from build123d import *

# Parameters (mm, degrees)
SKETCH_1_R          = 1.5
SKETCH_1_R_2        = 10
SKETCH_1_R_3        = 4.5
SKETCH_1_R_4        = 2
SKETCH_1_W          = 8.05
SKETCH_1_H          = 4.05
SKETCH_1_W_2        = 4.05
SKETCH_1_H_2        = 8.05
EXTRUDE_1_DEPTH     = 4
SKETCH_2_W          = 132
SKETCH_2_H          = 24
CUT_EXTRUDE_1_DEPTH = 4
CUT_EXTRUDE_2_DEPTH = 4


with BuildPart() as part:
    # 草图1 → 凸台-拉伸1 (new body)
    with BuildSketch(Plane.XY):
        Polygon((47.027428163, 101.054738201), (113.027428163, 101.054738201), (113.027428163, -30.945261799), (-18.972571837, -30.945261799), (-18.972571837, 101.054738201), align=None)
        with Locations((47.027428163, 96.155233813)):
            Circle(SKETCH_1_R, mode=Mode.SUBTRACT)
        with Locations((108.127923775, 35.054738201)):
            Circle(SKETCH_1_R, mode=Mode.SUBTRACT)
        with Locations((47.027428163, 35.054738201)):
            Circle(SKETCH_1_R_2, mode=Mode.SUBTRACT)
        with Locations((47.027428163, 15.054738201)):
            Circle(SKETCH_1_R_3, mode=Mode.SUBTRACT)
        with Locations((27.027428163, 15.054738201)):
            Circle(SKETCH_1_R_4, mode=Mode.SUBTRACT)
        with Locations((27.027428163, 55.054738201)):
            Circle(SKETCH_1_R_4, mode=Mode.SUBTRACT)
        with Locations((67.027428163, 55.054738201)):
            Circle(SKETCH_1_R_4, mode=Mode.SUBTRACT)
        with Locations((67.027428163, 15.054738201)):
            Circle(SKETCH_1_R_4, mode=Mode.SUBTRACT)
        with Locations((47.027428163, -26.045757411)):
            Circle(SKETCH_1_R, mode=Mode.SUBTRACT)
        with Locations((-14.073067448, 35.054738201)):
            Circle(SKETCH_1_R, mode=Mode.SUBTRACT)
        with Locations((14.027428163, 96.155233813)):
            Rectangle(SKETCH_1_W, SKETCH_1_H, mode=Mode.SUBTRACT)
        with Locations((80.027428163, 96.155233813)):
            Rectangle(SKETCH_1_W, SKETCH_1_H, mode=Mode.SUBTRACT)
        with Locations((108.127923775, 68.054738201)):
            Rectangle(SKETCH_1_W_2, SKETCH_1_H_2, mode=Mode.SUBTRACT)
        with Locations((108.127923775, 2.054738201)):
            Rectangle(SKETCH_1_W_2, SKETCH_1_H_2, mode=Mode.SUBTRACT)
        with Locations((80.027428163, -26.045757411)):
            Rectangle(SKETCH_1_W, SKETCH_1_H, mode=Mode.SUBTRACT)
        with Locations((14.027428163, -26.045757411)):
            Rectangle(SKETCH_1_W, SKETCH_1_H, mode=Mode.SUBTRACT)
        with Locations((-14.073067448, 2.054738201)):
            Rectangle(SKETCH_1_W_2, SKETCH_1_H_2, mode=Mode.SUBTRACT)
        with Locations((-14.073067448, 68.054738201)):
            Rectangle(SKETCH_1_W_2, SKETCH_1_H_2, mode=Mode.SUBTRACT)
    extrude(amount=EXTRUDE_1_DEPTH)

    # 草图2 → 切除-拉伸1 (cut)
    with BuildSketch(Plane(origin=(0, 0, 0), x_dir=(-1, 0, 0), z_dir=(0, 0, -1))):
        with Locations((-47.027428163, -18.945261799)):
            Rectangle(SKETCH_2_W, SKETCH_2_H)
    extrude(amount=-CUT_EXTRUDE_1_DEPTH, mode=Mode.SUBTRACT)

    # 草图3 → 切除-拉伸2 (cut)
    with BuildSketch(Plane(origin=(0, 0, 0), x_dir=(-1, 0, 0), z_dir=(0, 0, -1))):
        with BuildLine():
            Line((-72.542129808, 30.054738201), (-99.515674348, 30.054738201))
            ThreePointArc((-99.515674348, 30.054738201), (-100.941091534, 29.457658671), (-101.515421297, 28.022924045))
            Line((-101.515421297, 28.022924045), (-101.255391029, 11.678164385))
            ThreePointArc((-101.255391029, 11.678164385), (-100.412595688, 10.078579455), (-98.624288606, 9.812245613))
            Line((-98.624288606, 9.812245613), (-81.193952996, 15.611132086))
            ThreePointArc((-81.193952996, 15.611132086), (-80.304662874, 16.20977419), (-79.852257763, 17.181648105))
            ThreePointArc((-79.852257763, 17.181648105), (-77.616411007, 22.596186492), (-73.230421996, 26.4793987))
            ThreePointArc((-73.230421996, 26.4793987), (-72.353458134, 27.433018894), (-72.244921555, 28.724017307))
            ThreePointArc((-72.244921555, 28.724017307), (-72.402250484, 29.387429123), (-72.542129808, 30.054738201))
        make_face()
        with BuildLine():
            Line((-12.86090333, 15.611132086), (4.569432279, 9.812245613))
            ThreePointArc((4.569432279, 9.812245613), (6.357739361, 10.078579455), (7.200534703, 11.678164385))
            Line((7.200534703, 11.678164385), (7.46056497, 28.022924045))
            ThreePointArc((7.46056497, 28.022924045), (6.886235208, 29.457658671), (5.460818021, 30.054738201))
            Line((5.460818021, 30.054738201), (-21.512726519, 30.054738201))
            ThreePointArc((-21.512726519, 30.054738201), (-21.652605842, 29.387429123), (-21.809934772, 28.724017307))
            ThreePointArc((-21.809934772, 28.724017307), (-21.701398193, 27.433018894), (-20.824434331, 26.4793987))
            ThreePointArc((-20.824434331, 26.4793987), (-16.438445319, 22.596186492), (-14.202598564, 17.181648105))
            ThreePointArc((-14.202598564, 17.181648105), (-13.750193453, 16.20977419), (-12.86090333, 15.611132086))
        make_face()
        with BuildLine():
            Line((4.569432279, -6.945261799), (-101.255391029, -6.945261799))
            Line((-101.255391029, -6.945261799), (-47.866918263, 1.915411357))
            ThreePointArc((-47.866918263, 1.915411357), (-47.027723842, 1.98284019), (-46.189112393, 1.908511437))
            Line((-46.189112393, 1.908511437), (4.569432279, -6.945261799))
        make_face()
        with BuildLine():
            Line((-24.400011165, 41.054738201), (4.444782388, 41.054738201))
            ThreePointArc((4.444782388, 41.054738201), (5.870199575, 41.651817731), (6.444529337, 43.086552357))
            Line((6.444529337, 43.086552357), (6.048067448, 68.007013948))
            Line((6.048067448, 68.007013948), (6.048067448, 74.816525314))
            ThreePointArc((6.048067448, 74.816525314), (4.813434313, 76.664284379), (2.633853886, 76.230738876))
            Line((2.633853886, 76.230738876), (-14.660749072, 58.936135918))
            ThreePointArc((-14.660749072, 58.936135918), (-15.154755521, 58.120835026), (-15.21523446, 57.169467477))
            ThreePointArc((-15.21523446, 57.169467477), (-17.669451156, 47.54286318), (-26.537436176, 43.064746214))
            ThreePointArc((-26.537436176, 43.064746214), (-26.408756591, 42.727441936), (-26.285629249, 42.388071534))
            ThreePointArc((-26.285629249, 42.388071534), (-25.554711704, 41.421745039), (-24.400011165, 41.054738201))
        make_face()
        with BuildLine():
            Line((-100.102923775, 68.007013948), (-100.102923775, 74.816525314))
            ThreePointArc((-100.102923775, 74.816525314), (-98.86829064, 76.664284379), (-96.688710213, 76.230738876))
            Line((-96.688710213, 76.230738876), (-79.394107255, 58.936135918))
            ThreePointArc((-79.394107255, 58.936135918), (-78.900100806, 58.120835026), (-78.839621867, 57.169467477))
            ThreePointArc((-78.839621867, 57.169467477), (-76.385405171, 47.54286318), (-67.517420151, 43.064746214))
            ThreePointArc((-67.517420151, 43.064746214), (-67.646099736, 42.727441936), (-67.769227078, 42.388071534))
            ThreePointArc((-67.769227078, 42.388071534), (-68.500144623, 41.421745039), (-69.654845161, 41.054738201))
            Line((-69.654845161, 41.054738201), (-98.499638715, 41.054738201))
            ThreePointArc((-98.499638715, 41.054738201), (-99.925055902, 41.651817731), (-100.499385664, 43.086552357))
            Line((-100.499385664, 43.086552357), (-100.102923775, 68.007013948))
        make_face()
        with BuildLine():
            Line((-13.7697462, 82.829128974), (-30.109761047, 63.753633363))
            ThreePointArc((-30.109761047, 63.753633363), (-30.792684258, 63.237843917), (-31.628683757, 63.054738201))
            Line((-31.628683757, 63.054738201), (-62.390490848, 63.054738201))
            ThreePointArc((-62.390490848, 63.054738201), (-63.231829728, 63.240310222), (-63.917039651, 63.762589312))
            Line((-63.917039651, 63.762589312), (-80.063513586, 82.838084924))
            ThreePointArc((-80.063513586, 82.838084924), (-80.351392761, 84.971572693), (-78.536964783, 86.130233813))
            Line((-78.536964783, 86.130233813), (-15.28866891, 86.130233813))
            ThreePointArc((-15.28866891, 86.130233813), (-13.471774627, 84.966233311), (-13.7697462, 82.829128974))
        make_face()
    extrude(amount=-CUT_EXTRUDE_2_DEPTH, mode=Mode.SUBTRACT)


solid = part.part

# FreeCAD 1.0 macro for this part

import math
import FreeCAD as App
import Part
import Sketcher

V = App.Vector
Q = App.Units.Quantity

doc = App.newDocument("Part")
params = doc.addObject("Spreadsheet::Sheet", "Params")
for row, (alias, value) in enumerate([
    ("sketch1_diameter", "3 mm"),
    ("sketch1_diameter2", "4 mm"),
    ("sketch1_diameter3", "9 mm"),
    ("sketch1_diameter4", "20 mm"),
    ("sketch1_width", "132 mm"),
    ("pad1_length", "4 mm"),
    ("sketch2_width", "132 mm"),
    ("sketch2_height", "24 mm"),
    ("pocket1_length", "4 mm"),
    ("sketch3_radius", "2 mm"),
    ("sketch3_radius2", "2 mm"),
    ("sketch3_radius3", "2 mm"),
    ("sketch3_radius4", "13 mm"),
    ("sketch3_radius5", "2 mm"),
    ("pocket2_length", "4 mm"),
], start=1):
    params.set(f"A{row}", alias)
    params.set(f"B{row}", "=" + value)
    params.setAlias(f"B{row}", alias)

body = doc.addObject("PartDesign::Body", "Body")

# Sketch on XY plane
sketch1 = body.newObject("Sketcher::SketchObject", "Sketch")
sketch1.AttachmentSupport = (doc.getObject("XY_Plane"), [""])
sketch1.MapMode = "FlatFace"
sketch1.addGeometry(Part.LineSegment(V(113, 101.1, 0), V(-19, 101.1, 0)), False)
sketch1.addGeometry(Part.LineSegment(V(-19, 101.1, 0), V(-19, -30.9, 0)), False)
sketch1.addGeometry(Part.LineSegment(V(-19, -30.9, 0), V(113, -30.9, 0)), False)
sketch1.addGeometry(Part.LineSegment(V(113, -30.9, 0), V(113, 101.1, 0)), False)
sketch1.addGeometry(Part.LineSegment(V(76, -28.1, 0), V(76, -24, 0)), False)
sketch1.addGeometry(Part.LineSegment(V(76, -24, 0), V(84.1, -24, 0)), False)
sketch1.addGeometry(Part.LineSegment(V(84.1, -24, 0), V(84.1, -28.1, 0)), False)
sketch1.addGeometry(Part.LineSegment(V(84.1, -28.1, 0), V(76, -28.1, 0)), False)
sketch1.addGeometry(Part.LineSegment(V(106.1, -2, 0), V(106.1, 6.1, 0)), False)
sketch1.addGeometry(Part.LineSegment(V(106.1, 6.1, 0), V(110.2, 6.1, 0)), False)
sketch1.addGeometry(Part.LineSegment(V(110.2, 6.1, 0), V(110.2, -2, 0)), False)
sketch1.addGeometry(Part.LineSegment(V(110.2, -2, 0), V(106.1, -2, 0)), False)
sketch1.addGeometry(Part.Circle(V(108.1, 35.1, 0), V(0, 0, 1), 1.5), False)
sketch1.addGeometry(Part.Circle(V(67, 15.1, 0), V(0, 0, 1), 2), False)
sketch1.addGeometry(Part.Circle(V(47, -26, 0), V(0, 0, 1), 1.5), False)
sketch1.addGeometry(Part.LineSegment(V(10, -28.1, 0), V(10, -24, 0)), False)
sketch1.addGeometry(Part.LineSegment(V(10, -24, 0), V(18.1, -24, 0)), False)
sketch1.addGeometry(Part.LineSegment(V(18.1, -24, 0), V(18.1, -28.1, 0)), False)
sketch1.addGeometry(Part.LineSegment(V(18.1, -28.1, 0), V(10, -28.1, 0)), False)
sketch1.addGeometry(Part.LineSegment(V(-16.1, -2, 0), V(-16.1, 6.1, 0)), False)
sketch1.addGeometry(Part.LineSegment(V(-16.1, 6.1, 0), V(-12, 6.1, 0)), False)
sketch1.addGeometry(Part.LineSegment(V(-12, 6.1, 0), V(-12, -2, 0)), False)
sketch1.addGeometry(Part.LineSegment(V(-12, -2, 0), V(-16.1, -2, 0)), False)
sketch1.addGeometry(Part.Circle(V(47, 15.1, 0), V(0, 0, 1), 4.5), False)
sketch1.addGeometry(Part.Circle(V(27, 15.1, 0), V(0, 0, 1), 2), False)
sketch1.addGeometry(Part.Circle(V(47, 35.1, 0), V(0, 0, 1), 10), False)
sketch1.addGeometry(Part.Circle(V(-14.1, 35.1, 0), V(0, 0, 1), 1.5), False)
sketch1.addGeometry(Part.Circle(V(67, 55.1, 0), V(0, 0, 1), 2), False)
sketch1.addGeometry(Part.LineSegment(V(106.1, 64, 0), V(106.1, 72.1, 0)), False)
sketch1.addGeometry(Part.LineSegment(V(106.1, 72.1, 0), V(110.2, 72.1, 0)), False)
sketch1.addGeometry(Part.LineSegment(V(110.2, 72.1, 0), V(110.2, 64, 0)), False)
sketch1.addGeometry(Part.LineSegment(V(110.2, 64, 0), V(106.1, 64, 0)), False)
sketch1.addGeometry(Part.LineSegment(V(76, 94.1, 0), V(76, 98.2, 0)), False)
sketch1.addGeometry(Part.LineSegment(V(76, 98.2, 0), V(84.1, 98.2, 0)), False)
sketch1.addGeometry(Part.LineSegment(V(84.1, 98.2, 0), V(84.1, 94.1, 0)), False)
sketch1.addGeometry(Part.LineSegment(V(84.1, 94.1, 0), V(76, 94.1, 0)), False)
sketch1.addGeometry(Part.Circle(V(27, 55.1, 0), V(0, 0, 1), 2), False)
sketch1.addGeometry(Part.Circle(V(47, 96.2, 0), V(0, 0, 1), 1.5), False)
sketch1.addGeometry(Part.LineSegment(V(-16.1, 64, 0), V(-16.1, 72.1, 0)), False)
sketch1.addGeometry(Part.LineSegment(V(-16.1, 72.1, 0), V(-12, 72.1, 0)), False)
sketch1.addGeometry(Part.LineSegment(V(-12, 72.1, 0), V(-12, 64, 0)), False)
sketch1.addGeometry(Part.LineSegment(V(-12, 64, 0), V(-16.1, 64, 0)), False)
sketch1.addGeometry(Part.LineSegment(V(10, 94.1, 0), V(10, 98.2, 0)), False)
sketch1.addGeometry(Part.LineSegment(V(10, 98.2, 0), V(18.1, 98.2, 0)), False)
sketch1.addGeometry(Part.LineSegment(V(18.1, 98.2, 0), V(18.1, 94.1, 0)), False)
sketch1.addGeometry(Part.LineSegment(V(18.1, 94.1, 0), V(10, 94.1, 0)), False)
sketch1.addConstraint(Sketcher.Constraint("Coincident", 0, 2, 1, 1))
sketch1.addConstraint(Sketcher.Constraint("Coincident", 1, 2, 2, 1))
sketch1.addConstraint(Sketcher.Constraint("Coincident", 2, 2, 3, 1))
sketch1.addConstraint(Sketcher.Constraint("Coincident", 3, 2, 0, 1))
sketch1.addConstraint(Sketcher.Constraint("Coincident", 4, 2, 5, 1))
sketch1.addConstraint(Sketcher.Constraint("Coincident", 5, 2, 6, 1))
sketch1.addConstraint(Sketcher.Constraint("Coincident", 6, 2, 7, 1))
sketch1.addConstraint(Sketcher.Constraint("Coincident", 7, 2, 4, 1))
sketch1.addConstraint(Sketcher.Constraint("Coincident", 8, 2, 9, 1))
sketch1.addConstraint(Sketcher.Constraint("Coincident", 9, 2, 10, 1))
sketch1.addConstraint(Sketcher.Constraint("Coincident", 10, 2, 11, 1))
sketch1.addConstraint(Sketcher.Constraint("Coincident", 11, 2, 8, 1))
sketch1.addConstraint(Sketcher.Constraint("Coincident", 15, 2, 16, 1))
sketch1.addConstraint(Sketcher.Constraint("Coincident", 16, 2, 17, 1))
sketch1.addConstraint(Sketcher.Constraint("Coincident", 17, 2, 18, 1))
sketch1.addConstraint(Sketcher.Constraint("Coincident", 18, 2, 15, 1))
sketch1.addConstraint(Sketcher.Constraint("Coincident", 19, 2, 20, 1))
sketch1.addConstraint(Sketcher.Constraint("Coincident", 20, 2, 21, 1))
sketch1.addConstraint(Sketcher.Constraint("Coincident", 21, 2, 22, 1))
sketch1.addConstraint(Sketcher.Constraint("Coincident", 22, 2, 19, 1))
sketch1.addConstraint(Sketcher.Constraint("Coincident", 28, 2, 29, 1))
sketch1.addConstraint(Sketcher.Constraint("Coincident", 29, 2, 30, 1))
sketch1.addConstraint(Sketcher.Constraint("Coincident", 30, 2, 31, 1))
sketch1.addConstraint(Sketcher.Constraint("Coincident", 31, 2, 28, 1))
sketch1.addConstraint(Sketcher.Constraint("Coincident", 32, 2, 33, 1))
sketch1.addConstraint(Sketcher.Constraint("Coincident", 33, 2, 34, 1))
sketch1.addConstraint(Sketcher.Constraint("Coincident", 34, 2, 35, 1))
sketch1.addConstraint(Sketcher.Constraint("Coincident", 35, 2, 32, 1))
sketch1.addConstraint(Sketcher.Constraint("Coincident", 38, 2, 39, 1))
sketch1.addConstraint(Sketcher.Constraint("Coincident", 39, 2, 40, 1))
sketch1.addConstraint(Sketcher.Constraint("Coincident", 40, 2, 41, 1))
sketch1.addConstraint(Sketcher.Constraint("Coincident", 41, 2, 38, 1))
sketch1.addConstraint(Sketcher.Constraint("Coincident", 42, 2, 43, 1))
sketch1.addConstraint(Sketcher.Constraint("Coincident", 43, 2, 44, 1))
sketch1.addConstraint(Sketcher.Constraint("Coincident", 44, 2, 45, 1))
sketch1.addConstraint(Sketcher.Constraint("Coincident", 45, 2, 42, 1))
sketch1.addConstraint(Sketcher.Constraint("Horizontal", 0))
sketch1.addConstraint(Sketcher.Constraint("Vertical", 1))
sketch1.addConstraint(Sketcher.Constraint("Horizontal", 2))
sketch1.addConstraint(Sketcher.Constraint("Vertical", 3))
sketch1.addConstraint(Sketcher.Constraint("Vertical", 4))
sketch1.addConstraint(Sketcher.Constraint("Horizontal", 5))
sketch1.addConstraint(Sketcher.Constraint("Vertical", 6))
sketch1.addConstraint(Sketcher.Constraint("Horizontal", 7))
sketch1.addConstraint(Sketcher.Constraint("Vertical", 8))
sketch1.addConstraint(Sketcher.Constraint("Horizontal", 9))
sketch1.addConstraint(Sketcher.Constraint("Vertical", 10))
sketch1.addConstraint(Sketcher.Constraint("Horizontal", 11))
sketch1.addConstraint(Sketcher.Constraint("Vertical", 15))
sketch1.addConstraint(Sketcher.Constraint("Horizontal", 16))
sketch1.addConstraint(Sketcher.Constraint("Vertical", 17))
sketch1.addConstraint(Sketcher.Constraint("Horizontal", 18))
sketch1.addConstraint(Sketcher.Constraint("Vertical", 19))
sketch1.addConstraint(Sketcher.Constraint("Horizontal", 20))
sketch1.addConstraint(Sketcher.Constraint("Vertical", 21))
sketch1.addConstraint(Sketcher.Constraint("Horizontal", 22))
sketch1.addConstraint(Sketcher.Constraint("Vertical", 28))
sketch1.addConstraint(Sketcher.Constraint("Horizontal", 29))
sketch1.addConstraint(Sketcher.Constraint("Vertical", 30))
sketch1.addConstraint(Sketcher.Constraint("Horizontal", 31))
sketch1.addConstraint(Sketcher.Constraint("Vertical", 32))
sketch1.addConstraint(Sketcher.Constraint("Horizontal", 33))
sketch1.addConstraint(Sketcher.Constraint("Vertical", 34))
sketch1.addConstraint(Sketcher.Constraint("Horizontal", 35))
sketch1.addConstraint(Sketcher.Constraint("Vertical", 38))
sketch1.addConstraint(Sketcher.Constraint("Horizontal", 39))
sketch1.addConstraint(Sketcher.Constraint("Vertical", 40))
sketch1.addConstraint(Sketcher.Constraint("Horizontal", 41))
sketch1.addConstraint(Sketcher.Constraint("Vertical", 42))
sketch1.addConstraint(Sketcher.Constraint("Horizontal", 43))
sketch1.addConstraint(Sketcher.Constraint("Vertical", 44))
sketch1.addConstraint(Sketcher.Constraint("Horizontal", 45))
sketch1.addConstraint(Sketcher.Constraint("Equal", 12, 14))
sketch1.addConstraint(Sketcher.Constraint("Equal", 13, 24))
sketch1.addConstraint(Sketcher.Constraint("Equal", 14, 26))
sketch1.addConstraint(Sketcher.Constraint("Equal", 24, 27))
sketch1.addConstraint(Sketcher.Constraint("Equal", 27, 36))
sketch1.addConstraint(Sketcher.Constraint("Equal", 26, 37))
sketch1.addConstraint(Sketcher.Constraint("Horizontal", 13, 3, 23, 3))
sketch1.addConstraint(Sketcher.Constraint("Horizontal", 23, 3, 24, 3))
sketch1.addConstraint(Sketcher.Constraint("Horizontal", 12, 3, 25, 3))
sketch1.addConstraint(Sketcher.Constraint("Horizontal", 25, 3, 26, 3))
sketch1.addConstraint(Sketcher.Constraint("Horizontal", 27, 3, 36, 3))
sketch1.addConstraint(Sketcher.Constraint("Horizontal", 5, 2, 15, 2))
sketch1.addConstraint(Sketcher.Constraint("Horizontal", 7, 2, 17, 2))
sketch1.addConstraint(Sketcher.Constraint("Horizontal", 9, 2, 19, 2))
sketch1.addConstraint(Sketcher.Constraint("Horizontal", 11, 2, 21, 2))
sketch1.addConstraint(Sketcher.Constraint("Horizontal", 29, 2, 38, 2))
sketch1.addConstraint(Sketcher.Constraint("Horizontal", 31, 2, 40, 2))
sketch1.addConstraint(Sketcher.Constraint("Horizontal", 33, 2, 42, 2))
sketch1.addConstraint(Sketcher.Constraint("Horizontal", 35, 2, 44, 2))
sketch1.addConstraint(Sketcher.Constraint("Vertical", 14, 3, 23, 3))
sketch1.addConstraint(Sketcher.Constraint("Vertical", 23, 3, 25, 3))
sketch1.addConstraint(Sketcher.Constraint("Vertical", 13, 3, 27, 3))
sketch1.addConstraint(Sketcher.Constraint("Vertical", 24, 3, 36, 3))
sketch1.addConstraint(Sketcher.Constraint("Vertical", 25, 3, 37, 3))
sketch1.addConstraint(Sketcher.Constraint("Vertical", 11, 2, 28, 2))
sketch1.addConstraint(Sketcher.Constraint("Vertical", 10, 2, 29, 2))
sketch1.addConstraint(Sketcher.Constraint("Vertical", 7, 2, 32, 2))
sketch1.addConstraint(Sketcher.Constraint("Vertical", 6, 2, 33, 2))
sketch1.addConstraint(Sketcher.Constraint("Vertical", 22, 2, 38, 2))
sketch1.addConstraint(Sketcher.Constraint("Vertical", 21, 2, 39, 2))
sketch1.addConstraint(Sketcher.Constraint("Vertical", 18, 2, 42, 2))
sketch1.addConstraint(Sketcher.Constraint("Vertical", 17, 2, 43, 2))
sketch1.addConstraint(Sketcher.Constraint("Equal", 7, 16))
sketch1.addConstraint(Sketcher.Constraint("Equal", 11, 20))
sketch1.addConstraint(Sketcher.Constraint("Equal", 2, 1))
sketch1.addConstraint(Sketcher.Constraint("Equal", 41, 4))
sketch1.addConstraint(Sketcher.Constraint("Equal", 45, 8))
sketch1.addConstraint(Sketcher.Constraint("Equal", 21, 28))
sketch1.addConstraint(Sketcher.Constraint("Equal", 17, 32))
sketch1.addConstraint(Sketcher.Constraint("Diameter", 12, Q("3 mm")))
sketch1.addConstraint(Sketcher.Constraint("Diameter", 13, Q("4 mm")))
sketch1.addConstraint(Sketcher.Constraint("Diameter", 23, Q("9 mm")))
sketch1.addConstraint(Sketcher.Constraint("Diameter", 25, Q("20 mm")))
sketch1.addConstraint(Sketcher.Constraint("DistanceX", 0, 2, 0, 1, Q("132 mm")))
sketch1.addConstraint(Sketcher.Constraint("DistanceY", 13, 3, 12, 3, Q("20 mm")))
sketch1.addConstraint(Sketcher.Constraint("DistanceX", 14, 3, 13, 3, Q("20 mm")))
sketch1.addConstraint(Sketcher.Constraint("DistanceX", 24, 3, 23, 3, Q("20 mm")))
sketch1.addConstraint(Sketcher.Constraint("DistanceY", 25, 3, 27, 3, Q("20 mm")))
sketch1.addConstraint(Sketcher.Constraint("DistanceX", 0, 2, 36, 3, Q("46 mm")))
sketch1.addConstraint(Sketcher.Constraint("DistanceY", 36, 3, 0, 2, Q("46 mm")))
sketch1.addConstraint(Sketcher.Constraint("DistanceY", 8, 2, 28, 2, Q("66 mm")))
sketch1.addConstraint(Sketcher.Constraint("DistanceX", 5, 1, 5, 2, Q("8.05 mm")))
sketch1.addConstraint(Sketcher.Constraint("DistanceX", 9, 1, 9, 2, Q("4.05 mm")))
sketch1.addConstraint(Sketcher.Constraint("DistanceX", 14, 3, 4, 2, Q("28.975 mm")))
sketch1.addConstraint(Sketcher.Constraint("DistanceY", 14, 3, 4, 2, Q("2.025 mm")))
sketch1.addConstraint(Sketcher.Constraint("DistanceX", 8, 2, 12, 3, Q("2.025 mm")))
sketch1.addConstraint(Sketcher.Constraint("DistanceY", 8, 2, 12, 3, Q("28.975 mm")))
sketch1.addConstraint(Sketcher.Constraint("DistanceX", 1, 2, 15, 2, Q("28.975 mm")))
sketch1.addConstraint(Sketcher.Constraint("DistanceX", 19, 2, 26, 3, Q("2.025 mm")))
sketch1.addConstraint(Sketcher.Constraint("DistanceY", 37, 3, 32, 2, Q("2.025 mm")))
sketch1.addConstraint(Sketcher.Constraint("DistanceY", -1, 1, 12, 3, Q("35.054738 mm")))
sketch1.addConstraint(Sketcher.Constraint("DistanceX", -1, 1, 13, 3, Q("67.027428 mm")))
sketch1.addConstraint(Sketcher.Constraint("DistanceX", -1, 1, 12, 3, Q("108.127924 mm")))
sketch1.addConstraint(Sketcher.Constraint("DistanceY", 14, 3, -1, 1, Q("26.045757 mm")))
sketch1.addConstraint(Sketcher.Constraint("DistanceX", 26, 3, -1, 1, Q("14.073067 mm")))
sketch1.addConstraint(Sketcher.Constraint("DistanceY", -1, 1, 37, 3, Q("96.155234 mm")))
sketch1.setExpression("Constraints[111]", "Params.sketch1_diameter")
sketch1.setExpression("Constraints[112]", "Params.sketch1_diameter2")
sketch1.setExpression("Constraints[113]", "Params.sketch1_diameter3")
sketch1.setExpression("Constraints[114]", "Params.sketch1_diameter4")
sketch1.setExpression("Constraints[115]", "Params.sketch1_width")
pad1 = body.newObject("PartDesign::Pad", "Pad")
pad1.Profile = sketch1
pad1.setExpression("Length", "Params.pad1_length")

# Sketch on XY plane
sketch2 = body.newObject("Sketcher::SketchObject", "Sketch001")
sketch2.AttachmentSupport = (doc.getObject("XY_Plane"), [""])
sketch2.MapMode = "FlatFace"
sketch2.addGeometry(Part.LineSegment(V(113, -7, 0), V(113, -31, 0)), False)
sketch2.addGeometry(Part.LineSegment(V(113, -31, 0), V(-19, -31, 0)), False)
sketch2.addGeometry(Part.LineSegment(V(-19, -31, 0), V(-19, -7, 0)), False)
sketch2.addGeometry(Part.LineSegment(V(-19, -7, 0), V(113, -7, 0)), False)
sketch2.addConstraint(Sketcher.Constraint("Coincident", 0, 2, 1, 1))
sketch2.addConstraint(Sketcher.Constraint("Coincident", 1, 2, 2, 1))
sketch2.addConstraint(Sketcher.Constraint("Coincident", 2, 2, 3, 1))
sketch2.addConstraint(Sketcher.Constraint("Coincident", 3, 2, 0, 1))
sketch2.addConstraint(Sketcher.Constraint("Vertical", 0))
sketch2.addConstraint(Sketcher.Constraint("Horizontal", 1))
sketch2.addConstraint(Sketcher.Constraint("Vertical", 2))
sketch2.addConstraint(Sketcher.Constraint("Horizontal", 3))
sketch2.addConstraint(Sketcher.Constraint("DistanceX", 1, 2, 1, 1, Q("132 mm")))
sketch2.addConstraint(Sketcher.Constraint("DistanceY", 0, 2, 0, 1, Q("24 mm")))
sketch2.addConstraint(Sketcher.Constraint("DistanceX", -1, 1, 0, 2, Q("113.027428 mm")))
sketch2.addConstraint(Sketcher.Constraint("DistanceY", 0, 2, -1, 1, Q("30.945262 mm")))
sketch2.setExpression("Constraints[8]", "Params.sketch2_width")
sketch2.setExpression("Constraints[9]", "Params.sketch2_height")
pocket1 = body.newObject("PartDesign::Pocket", "Pocket")
pocket1.Profile = sketch2
pocket1.setExpression("Length", "Params.pocket1_length")
pocket1.Reversed = True

# Sketch on XY plane
sketch3 = body.newObject("Sketcher::SketchObject", "Sketch002")
sketch3.AttachmentSupport = (doc.getObject("XY_Plane"), [""])
sketch3.MapMode = "FlatFace"
sketch3.addGeometry(Part.LineSegment(V(72.54213, 30.054738, 0), V(99.515674, 30.054738, 0)), False)
sketch3.addGeometry(Part.ArcOfCircle(Part.Circle(V(99.515674, 28.054738, 0), V(0, 0, 1), 2), math.radians(-0.911447), math.radians(90)), False)
sketch3.addGeometry(Part.LineSegment(V(101.515421, 28.022924, 0), V(101.255391, 11.678164, 0)), False)
sketch3.addGeometry(Part.ArcOfCircle(Part.Circle(V(99.255644, 11.709979, 0), V(0, 0, 1), 2), math.radians(-108.401733), math.radians(-0.911447)), False)
sketch3.addGeometry(Part.LineSegment(V(98.624289, 9.812246, 0), V(81.193953, 15.611132, 0)), False)
sketch3.addGeometry(Part.ArcOfCircle(Part.Circle(V(81.825308, 17.508865, 0), V(0, 0, 1), 2), math.radians(-170.583594), math.radians(-108.401733)), False)
sketch3.addGeometry(Part.ArcOfCircle(Part.Circle(V(67.027428, 15.054738, 0), V(0, 0, 1), 13), math.radians(9.416406), math.radians(61.500351)), False)
sketch3.addGeometry(Part.ArcOfCircle(Part.Circle(V(74.184729, 28.237039, 0), V(0, 0, 1), 2), math.radians(165.907428), math.radians(241.500351)), False)
sketch3.addGeometry(Part.ArcOfCircle(Part.Circle(V(47.027427, 35.054738, 0), V(0, 0, 1), 26.000001), math.radians(-14.092572), math.radians(-11.087489)), False)
sketch3.addGeometry(Part.LineSegment(V(12.860903, 15.611132, 0), V(-4.569432, 9.812246, 0)), False)
sketch3.addGeometry(Part.ArcOfCircle(Part.Circle(V(-5.200788, 11.709979, 0), V(0, 0, 1), 2), math.radians(-179.088553), math.radians(-71.598267)), False)
sketch3.addGeometry(Part.LineSegment(V(-7.200535, 11.678164, 0), V(-7.460565, 28.022924, 0)), False)
sketch3.addGeometry(Part.ArcOfCircle(Part.Circle(V(-5.460818, 28.054738, 0), V(0, 0, 1), 2), math.radians(90), math.radians(180.911447)), False)
sketch3.addGeometry(Part.LineSegment(V(-5.460818, 30.054738, 0), V(21.512727, 30.054738, 0)), False)
sketch3.addGeometry(Part.ArcOfCircle(Part.Circle(V(47.027426, 35.054738, 0), V(0, 0, 1), 25.999998), math.radians(-168.912511), math.radians(-165.907428)), False)
sketch3.addGeometry(Part.ArcOfCircle(Part.Circle(V(19.870128, 28.237039, 0), V(0, 0, 1), 2), math.radians(-61.500351), math.radians(14.092572)), False)
sketch3.addGeometry(Part.ArcOfCircle(Part.Circle(V(27.027428, 15.054738, 0), V(0, 0, 1), 13), math.radians(118.499649), math.radians(170.583594)), False)
sketch3.addGeometry(Part.ArcOfCircle(Part.Circle(V(12.229548, 17.508865, 0), V(0, 0, 1), 2), math.radians(-71.598267), math.radians(-9.416406)), False)
sketch3.addGeometry(Part.LineSegment(V(101.255391, -6.945262, 0), V(-4.569432, -6.945262, 0)), False)
sketch3.addGeometry(Part.LineSegment(V(-4.569432, -6.945262, 0), V(46.189112, 1.908511, 0)), False)
sketch3.addGeometry(Part.ArcOfCircle(Part.Circle(V(47.048286, -3.017118, 0), V(0, 0, 1), 5), math.radians(80.576741), math.radians(99.894511)), False)
sketch3.addGeometry(Part.LineSegment(V(47.866918, 1.915411, 0), V(101.255391, -6.945262, 0)), False)
sketch3.addGeometry(Part.LineSegment(V(24.400011, 41.054738, 0), V(-4.444782, 41.054738, 0)), False)
sketch3.addGeometry(Part.ArcOfCircle(Part.Circle(V(-4.444782, 43.054738, 0), V(0, 0, 1), 2), math.radians(179.088553), math.radians(270)), False)
sketch3.addGeometry(Part.LineSegment(V(-6.444529, 43.086552, 0), V(-6.048067, 68.007014, 0)), False)
sketch3.addGeometry(Part.LineSegment(V(-6.048067, 68.007014, 0), V(-6.048067, 74.816525, 0)), False)
sketch3.addGeometry(Part.ArcOfCircle(Part.Circle(V(-4.048067, 74.816525, 0), V(0, 0, 1), 2), math.radians(45), math.radians(180)), False)
sketch3.addGeometry(Part.LineSegment(V(-2.633854, 76.230739, 0), V(14.660749, 58.936136, 0)), False)
sketch3.addGeometry(Part.ArcOfCircle(Part.Circle(V(13.246536, 57.521922, 0), V(0, 0, 1), 2), math.radians(-10.150095), math.radians(45)), False)
sketch3.addGeometry(Part.ArcOfCircle(Part.Circle(V(27.027428, 55.054738, 0), V(0, 0, 1), 12), math.radians(169.849905), math.radians(267.65981)), False)
sketch3.addGeometry(Part.ArcOfCircle(Part.Circle(V(47.027425, 35.054739, 0), V(0, 0, 1), 21.999997), math.radians(158.648331), math.radians(160.52878)), False)
sketch3.addGeometry(Part.ArcOfCircle(Part.Circle(V(24.400011, 43.054738, 0), V(0, 0, 1), 2), math.radians(-90), math.radians(-19.471221)), False)
sketch3.addGeometry(Part.LineSegment(V(100.102924, 74.816525, 0), V(100.102924, 68.007014, 0)), False)
sketch3.addGeometry(Part.LineSegment(V(100.102924, 68.007014, 0), V(100.499386, 43.086552, 0)), False)
sketch3.addGeometry(Part.ArcOfCircle(Part.Circle(V(98.499639, 43.054738, 0), V(0, 0, 1), 2), math.radians(-90), math.radians(0.911447)), False)
sketch3.addGeometry(Part.LineSegment(V(98.499639, 41.054738, 0), V(69.654845, 41.054738, 0)), False)
sketch3.addGeometry(Part.ArcOfCircle(Part.Circle(V(69.654845, 43.054738, 0), V(0, 0, 1), 2), math.radians(-160.528779), math.radians(-90)), False)
sketch3.addGeometry(Part.ArcOfCircle(Part.Circle(V(47.027431, 35.054739, 0), V(0, 0, 1), 21.999997), math.radians(19.47122), math.radians(21.351669)), False)
sketch3.addGeometry(Part.ArcOfCircle(Part.Circle(V(67.027428, 55.054738, 0), V(0, 0, 1), 12), math.radians(-87.65981), math.radians(10.150095)), False)
sketch3.addGeometry(Part.ArcOfCircle(Part.Circle(V(80.808321, 57.521922, 0), V(0, 0, 1), 2), math.radians(135), math.radians(190.150095)), False)
sketch3.addGeometry(Part.LineSegment(V(79.394107, 58.936136, 0), V(96.68871, 76.230739, 0)), False)
sketch3.addGeometry(Part.ArcOfCircle(Part.Circle(V(98.102924, 74.816525, 0), V(0, 0, 1), 2), math.radians(0), math.radians(135)), False)
sketch3.addGeometry(Part.LineSegment(V(30.109761, 63.753633, 0), V(13.769746, 82.829129, 0)), False)
sketch3.addGeometry(Part.ArcOfCircle(Part.Circle(V(15.288669, 84.130234, 0), V(0, 0, 1), 2), math.radians(90), math.radians(220.583265)), False)
sketch3.addGeometry(Part.LineSegment(V(15.288669, 86.130234, 0), V(78.536965, 86.130234, 0)), False)
sketch3.addGeometry(Part.ArcOfCircle(Part.Circle(V(78.536965, 84.130234, 0), V(0, 0, 1), 2), math.radians(-40.246281), math.radians(90)), False)
sketch3.addGeometry(Part.LineSegment(V(80.063514, 82.838085, 0), V(63.91704, 63.762589, 0)), False)
sketch3.addGeometry(Part.ArcOfCircle(Part.Circle(V(62.390491, 65.054738, 0), V(0, 0, 1), 2), math.radians(-90), math.radians(-40.246281)), False)
sketch3.addGeometry(Part.LineSegment(V(62.390491, 63.054738, 0), V(31.628684, 63.054738, 0)), False)
sketch3.addGeometry(Part.ArcOfCircle(Part.Circle(V(31.628684, 65.054738, 0), V(0, 0, 1), 2), math.radians(-139.416735), math.radians(-90)), False)
sketch3.addConstraint(Sketcher.Constraint("Coincident", 0, 2, 1, 2))
sketch3.addConstraint(Sketcher.Constraint("Coincident", 1, 1, 2, 1))
sketch3.addConstraint(Sketcher.Constraint("Coincident", 2, 2, 3, 2))
sketch3.addConstraint(Sketcher.Constraint("Coincident", 3, 1, 4, 1))
sketch3.addConstraint(Sketcher.Constraint("Coincident", 4, 2, 5, 2))
sketch3.addConstraint(Sketcher.Constraint("Coincident", 5, 1, 6, 1))
sketch3.addConstraint(Sketcher.Constraint("Coincident", 6, 2, 7, 2))
sketch3.addConstraint(Sketcher.Constraint("Coincident", 7, 1, 8, 1))
sketch3.addConstraint(Sketcher.Constraint("Coincident", 8, 2, 0, 1))
sketch3.addConstraint(Sketcher.Constraint("Coincident", 9, 2, 10, 2))
sketch3.addConstraint(Sketcher.Constraint("Coincident", 10, 1, 11, 1))
sketch3.addConstraint(Sketcher.Constraint("Coincident", 11, 2, 12, 2))
sketch3.addConstraint(Sketcher.Constraint("Coincident", 12, 1, 13, 1))
sketch3.addConstraint(Sketcher.Constraint("Coincident", 13, 2, 14, 1))
sketch3.addConstraint(Sketcher.Constraint("Coincident", 14, 2, 15, 2))
sketch3.addConstraint(Sketcher.Constraint("Coincident", 15, 1, 16, 1))
sketch3.addConstraint(Sketcher.Constraint("Coincident", 16, 2, 17, 2))
sketch3.addConstraint(Sketcher.Constraint("Coincident", 17, 1, 9, 1))
sketch3.addConstraint(Sketcher.Constraint("Coincident", 18, 2, 19, 1))
sketch3.addConstraint(Sketcher.Constraint("Coincident", 19, 2, 20, 2))
sketch3.addConstraint(Sketcher.Constraint("Coincident", 20, 1, 21, 1))
sketch3.addConstraint(Sketcher.Constraint("Coincident", 21, 2, 18, 1))
sketch3.addConstraint(Sketcher.Constraint("Coincident", 22, 2, 23, 2))
sketch3.addConstraint(Sketcher.Constraint("Coincident", 23, 1, 24, 1))
sketch3.addConstraint(Sketcher.Constraint("Coincident", 24, 2, 25, 1))
sketch3.addConstraint(Sketcher.Constraint("Coincident", 25, 2, 26, 2))
sketch3.addConstraint(Sketcher.Constraint("Coincident", 26, 1, 27, 1))
sketch3.addConstraint(Sketcher.Constraint("Coincident", 27, 2, 28, 2))
sketch3.addConstraint(Sketcher.Constraint("Coincident", 28, 1, 29, 1))
sketch3.addConstraint(Sketcher.Constraint("Coincident", 29, 2, 30, 1))
sketch3.addConstraint(Sketcher.Constraint("Coincident", 30, 2, 31, 2))
sketch3.addConstraint(Sketcher.Constraint("Coincident", 31, 1, 22, 1))
sketch3.addConstraint(Sketcher.Constraint("Coincident", 32, 2, 33, 1))
sketch3.addConstraint(Sketcher.Constraint("Coincident", 33, 2, 34, 2))
sketch3.addConstraint(Sketcher.Constraint("Coincident", 34, 1, 35, 1))
sketch3.addConstraint(Sketcher.Constraint("Coincident", 35, 2, 36, 2))
sketch3.addConstraint(Sketcher.Constraint("Coincident", 36, 1, 37, 1))
sketch3.addConstraint(Sketcher.Constraint("Coincident", 37, 2, 38, 1))
sketch3.addConstraint(Sketcher.Constraint("Coincident", 38, 2, 39, 2))
sketch3.addConstraint(Sketcher.Constraint("Coincident", 39, 1, 40, 1))
sketch3.addConstraint(Sketcher.Constraint("Coincident", 40, 2, 41, 2))
sketch3.addConstraint(Sketcher.Constraint("Coincident", 41, 1, 32, 1))
sketch3.addConstraint(Sketcher.Constraint("Coincident", 42, 2, 43, 2))
sketch3.addConstraint(Sketcher.Constraint("Coincident", 43, 1, 44, 1))
sketch3.addConstraint(Sketcher.Constraint("Coincident", 44, 2, 45, 2))
sketch3.addConstraint(Sketcher.Constraint("Coincident", 45, 1, 46, 1))
sketch3.addConstraint(Sketcher.Constraint("Coincident", 46, 2, 47, 2))
sketch3.addConstraint(Sketcher.Constraint("Coincident", 47, 1, 48, 1))
sketch3.addConstraint(Sketcher.Constraint("Coincident", 48, 2, 49, 2))
sketch3.addConstraint(Sketcher.Constraint("Coincident", 49, 1, 42, 1))
sketch3.addConstraint(Sketcher.Constraint("Horizontal", 0))
sketch3.addConstraint(Sketcher.Constraint("Horizontal", 13))
sketch3.addConstraint(Sketcher.Constraint("Horizontal", 18))
sketch3.addConstraint(Sketcher.Constraint("Horizontal", 22))
sketch3.addConstraint(Sketcher.Constraint("Vertical", 25))
sketch3.addConstraint(Sketcher.Constraint("Vertical", 32))
sketch3.addConstraint(Sketcher.Constraint("Horizontal", 35))
sketch3.addConstraint(Sketcher.Constraint("Horizontal", 44))
sketch3.addConstraint(Sketcher.Constraint("Horizontal", 48))
sketch3.addConstraint(Sketcher.Constraint("Coincident", 14, 3, 8, 3))
sketch3.addConstraint(Sketcher.Constraint("Coincident", 30, 3, 8, 3))
sketch3.addConstraint(Sketcher.Constraint("Coincident", 37, 3, 8, 3))
sketch3.addConstraint(Sketcher.Constraint("Radius", 1, Q("2 mm")))
sketch3.addConstraint(Sketcher.Constraint("Radius", 3, Q("2 mm")))
sketch3.addConstraint(Sketcher.Constraint("Radius", 5, Q("2 mm")))
sketch3.addConstraint(Sketcher.Constraint("Radius", 6, Q("13 mm")))
sketch3.addConstraint(Sketcher.Constraint("Radius", 7, Q("2 mm")))
sketch3.addConstraint(Sketcher.Constraint("Radius", 8, Q("26.000001 mm")))
sketch3.addConstraint(Sketcher.Constraint("Radius", 10, Q("2 mm")))
sketch3.addConstraint(Sketcher.Constraint("Radius", 12, Q("2 mm")))
sketch3.addConstraint(Sketcher.Constraint("Radius", 14, Q("25.999998 mm")))
sketch3.addConstraint(Sketcher.Constraint("Radius", 15, Q("2 mm")))
sketch3.addConstraint(Sketcher.Constraint("Radius", 16, Q("13 mm")))
sketch3.addConstraint(Sketcher.Constraint("Radius", 17, Q("2 mm")))
sketch3.addConstraint(Sketcher.Constraint("Radius", 20, Q("5 mm")))
sketch3.addConstraint(Sketcher.Constraint("Radius", 23, Q("2 mm")))
sketch3.addConstraint(Sketcher.Constraint("Radius", 26, Q("2 mm")))
sketch3.addConstraint(Sketcher.Constraint("Radius", 28, Q("2 mm")))
sketch3.addConstraint(Sketcher.Constraint("Radius", 29, Q("12 mm")))
sketch3.addConstraint(Sketcher.Constraint("Radius", 31, Q("2 mm")))
sketch3.addConstraint(Sketcher.Constraint("Radius", 34, Q("2 mm")))
sketch3.addConstraint(Sketcher.Constraint("Radius", 36, Q("2 mm")))
sketch3.addConstraint(Sketcher.Constraint("Radius", 38, Q("12 mm")))
sketch3.addConstraint(Sketcher.Constraint("Radius", 39, Q("2 mm")))
sketch3.addConstraint(Sketcher.Constraint("Radius", 41, Q("2 mm")))
sketch3.addConstraint(Sketcher.Constraint("Radius", 43, Q("2 mm")))
sketch3.addConstraint(Sketcher.Constraint("Radius", 45, Q("2 mm")))
sketch3.addConstraint(Sketcher.Constraint("Radius", 47, Q("2 mm")))
sketch3.addConstraint(Sketcher.Constraint("Radius", 49, Q("2 mm")))
sketch3.addConstraint(Sketcher.Constraint("Radius", 30, Q("21.999997 mm")))
sketch3.addConstraint(Sketcher.Constraint("Radius", 37, Q("21.999997 mm")))
sketch3.addConstraint(Sketcher.Constraint("DistanceY", 25, 1, 25, 2, Q("6.809511 mm")))
sketch3.addConstraint(Sketcher.Constraint("DistanceY", 32, 2, 32, 1, Q("6.809511 mm")))
sketch3.addConstraint(Sketcher.Constraint("DistanceY", -1, 1, 6, 2, Q("26.479399 mm")))
sketch3.addConstraint(Sketcher.Constraint("DistanceY", -1, 1, 15, 1, Q("26.479399 mm")))
sketch3.addConstraint(Sketcher.Constraint("DistanceX", -1, 1, 16, 2, Q("14.202599 mm")))
sketch3.addConstraint(Sketcher.Constraint("Distance", 4, Q("18.36964 mm")))
sketch3.addConstraint(Sketcher.Constraint("Distance", 9, Q("18.36964 mm")))
sketch3.addConstraint(Sketcher.Constraint("Distance", 46, Q("24.991662 mm")))
sketch3.addConstraint(Sketcher.Constraint("DistanceX", 0, 1, 0, 2, Q("26.973545 mm")))
sketch3.addConstraint(Sketcher.Constraint("DistanceX", 13, 1, 13, 2, Q("26.973545 mm")))
sketch3.addConstraint(Sketcher.Constraint("DistanceX", 18, 2, 18, 1, Q("105.824823 mm")))
sketch3.addConstraint(Sketcher.Constraint("DistanceX", 22, 2, 22, 1, Q("28.844794 mm")))
sketch3.addConstraint(Sketcher.Constraint("DistanceX", 35, 2, 35, 1, Q("28.844794 mm")))
sketch3.addConstraint(Sketcher.Constraint("DistanceX", 44, 1, 44, 2, Q("63.248296 mm")))
sketch3.addConstraint(Sketcher.Constraint("DistanceX", 48, 2, 48, 1, Q("30.761807 mm")))
sketch3.addConstraint(Sketcher.Constraint("DistanceY", -1, 1, 1, 3, Q("28.054738 mm")))
sketch3.addConstraint(Sketcher.Constraint("DistanceY", -1, 1, 3, 3, Q("11.709979 mm")))
sketch3.addConstraint(Sketcher.Constraint("DistanceX", -1, 1, 5, 3, Q("81.825308 mm")))
sketch3.addConstraint(Sketcher.Constraint("DistanceX", -1, 1, 6, 3, Q("67.027428 mm")))
sketch3.addConstraint(Sketcher.Constraint("DistanceY", -1, 1, 6, 3, Q("15.054738 mm")))
sketch3.addConstraint(Sketcher.Constraint("DistanceX", -1, 1, 7, 3, Q("74.184729 mm")))
sketch3.addConstraint(Sketcher.Constraint("DistanceY", -1, 1, 8, 3, Q("35.054738 mm")))
sketch3.addConstraint(Sketcher.Constraint("DistanceY", -1, 1, 10, 3, Q("11.709979 mm")))
sketch3.addConstraint(Sketcher.Constraint("DistanceX", 12, 3, -1, 1, Q("5.460818 mm")))
sketch3.addConstraint(Sketcher.Constraint("DistanceY", -1, 1, 12, 3, Q("28.054738 mm")))
sketch3.addConstraint(Sketcher.Constraint("DistanceY", -1, 1, 15, 3, Q("28.237039 mm")))
sketch3.addConstraint(Sketcher.Constraint("DistanceX", -1, 1, 16, 3, Q("27.027428 mm")))
sketch3.addConstraint(Sketcher.Constraint("DistanceY", -1, 1, 23, 3, Q("43.054738 mm")))
sketch3.addConstraint(Sketcher.Constraint("DistanceX", -1, 1, 29, 3, Q("27.027428 mm")))
sketch3.addConstraint(Sketcher.Constraint("DistanceY", -1, 1, 29, 3, Q("55.054738 mm")))
sketch3.addConstraint(Sketcher.Constraint("DistanceX", -1, 1, 34, 3, Q("98.499639 mm")))
sketch3.addConstraint(Sketcher.Constraint("DistanceY", -1, 1, 34, 3, Q("43.054738 mm")))
sketch3.addConstraint(Sketcher.Constraint("DistanceX", -1, 1, 38, 3, Q("67.027428 mm")))
sketch3.addConstraint(Sketcher.Constraint("DistanceY", -1, 1, 38, 3, Q("55.054738 mm")))
sketch3.addConstraint(Sketcher.Constraint("DistanceX", -1, 1, 39, 3, Q("80.808321 mm")))
sketch3.addConstraint(Sketcher.Constraint("DistanceX", -1, 1, 43, 3, Q("15.288669 mm")))
sketch3.addConstraint(Sketcher.Constraint("DistanceX", -1, 1, 47, 3, Q("62.390491 mm")))
sketch3.addConstraint(Sketcher.Constraint("DistanceY", -1, 1, 47, 3, Q("65.054738 mm")))
sketch3.addConstraint(Sketcher.Constraint("DistanceX", -1, 1, 1, 1, Q("101.515421 mm")))
sketch3.addConstraint(Sketcher.Constraint("DistanceX", -1, 1, 2, 2, Q("101.255391 mm")))
sketch3.addConstraint(Sketcher.Constraint("DistanceX", -1, 1, 3, 1, Q("98.624289 mm")))
sketch3.addConstraint(Sketcher.Constraint("DistanceY", -1, 1, 5, 1, Q("17.181648 mm")))
sketch3.addConstraint(Sketcher.Constraint("DistanceX", -1, 1, 7, 1, Q("72.244922 mm")))
sketch3.addConstraint(Sketcher.Constraint("DistanceY", 18, 2, -1, 1, Q("6.945262 mm")))
sketch3.addConstraint(Sketcher.Constraint("DistanceY", -1, 1, 19, 2, Q("1.908511 mm")))
sketch3.addConstraint(Sketcher.Constraint("DistanceX", -1, 1, 20, 1, Q("47.866918 mm")))
sketch3.addConstraint(Sketcher.Constraint("DistanceY", -1, 1, 20, 1, Q("1.915411 mm")))
sketch3.addConstraint(Sketcher.Constraint("DistanceX", -1, 1, 21, 2, Q("101.255391 mm")))
sketch3.addConstraint(Sketcher.Constraint("DistanceX", 23, 1, -1, 1, Q("6.444529 mm")))
sketch3.addConstraint(Sketcher.Constraint("DistanceY", -1, 1, 26, 1, Q("76.230739 mm")))
sketch3.addConstraint(Sketcher.Constraint("DistanceX", -1, 1, 27, 2, Q("14.660749 mm")))
sketch3.addConstraint(Sketcher.Constraint("DistanceX", -1, 1, 30, 2, Q("26.285629 mm")))
sketch3.addConstraint(Sketcher.Constraint("DistanceX", -1, 1, 31, 1, Q("24.400011 mm")))
sketch3.addConstraint(Sketcher.Constraint("DistanceX", -1, 1, 34, 1, Q("98.499639 mm")))
sketch3.addConstraint(Sketcher.Constraint("DistanceY", -1, 1, 36, 1, Q("42.388072 mm")))
sketch3.addConstraint(Sketcher.Constraint("DistanceX", -1, 1, 38, 2, Q("78.839622 mm")))
sketch3.addConstraint(Sketcher.Constraint("DistanceX", -1, 1, 40, 2, Q("96.68871 mm")))
sketch3.addConstraint(Sketcher.Constraint("DistanceY", -1, 1, 40, 2, Q("76.230739 mm")))
sketch3.addConstraint(Sketcher.Constraint("DistanceY", -1, 1, 42, 2, Q("82.829129 mm")))
sketch3.addConstraint(Sketcher.Constraint("DistanceX", -1, 1, 43, 1, Q("15.288669 mm")))
sketch3.addConstraint(Sketcher.Constraint("DistanceX", -1, 1, 46, 2, Q("63.91704 mm")))
sketch3.addConstraint(Sketcher.Constraint("DistanceX", -1, 1, 47, 1, Q("62.390491 mm")))
sketch3.addConstraint(Sketcher.Constraint("DistanceX", -1, 1, 49, 1, Q("30.109761 mm")))
sketch3.addConstraint(Sketcher.Constraint("Distance", 2, Q("16.346828 mm")))
sketch3.addConstraint(Sketcher.Constraint("Distance", 11, Q("16.346828 mm")))
sketch3.addConstraint(Sketcher.Constraint("Distance", 19, Q("51.524937 mm")))
sketch3.addConstraint(Sketcher.Constraint("Distance", 24, Q("24.923615 mm")))
sketch3.addConstraint(Sketcher.Constraint("Distance", 27, Q("24.458262 mm")))
sketch3.addConstraint(Sketcher.Constraint("Distance", 33, Q("24.923615 mm")))
sketch3.addConstraint(Sketcher.Constraint("Distance", 40, Q("24.458262 mm")))
sketch3.addConstraint(Sketcher.Constraint("Distance", 42, Q("25.117138 mm")))
sketch3.addConstraint(Sketcher.Constraint("DistanceX", -1, 1, 1, 3, Q("99.515674 mm")))
sketch3.addConstraint(Sketcher.Constraint("DistanceX", 10, 3, -1, 1, Q("5.200788 mm")))
sketch3.addConstraint(Sketcher.Constraint("DistanceX", -1, 1, 17, 3, Q("12.229548 mm")))
sketch3.addConstraint(Sketcher.Constraint("DistanceX", 23, 3, -1, 1, Q("4.444782 mm")))
sketch3.addConstraint(Sketcher.Constraint("DistanceX", 26, 3, -1, 1, Q("4.048067 mm")))
sketch3.addConstraint(Sketcher.Constraint("DistanceY", -1, 1, 26, 3, Q("74.816525 mm")))
sketch3.addConstraint(Sketcher.Constraint("DistanceX", -1, 1, 41, 3, Q("98.102924 mm")))
sketch3.addConstraint(Sketcher.Constraint("DistanceY", -1, 1, 43, 3, Q("84.130234 mm")))
sketch3.addConstraint(Sketcher.Constraint("DistanceX", -1, 1, 45, 3, Q("78.536965 mm")))
sketch3.addConstraint(Sketcher.Constraint("DistanceX", 9, 2, -1, 1, Q("4.569432 mm")))
sketch3.addConstraint(Sketcher.Constraint("DistanceX", 10, 1, -1, 1, Q("7.200535 mm")))
sketch3.addConstraint(Sketcher.Constraint("DistanceX", -1, 1, 14, 2, Q("21.809935 mm")))
sketch3.addConstraint(Sketcher.Constraint("DistanceX", -1, 1, 28, 1, Q("15.215234 mm")))
sketch3.addConstraint(Sketcher.Constraint("DistanceY", -1, 1, 32, 2, Q("68.007014 mm")))
sketch3.setExpression("Constraints[62]", "Params.sketch3_radius")
sketch3.setExpression("Constraints[63]", "Params.sketch3_radius2")
sketch3.setExpression("Constraints[64]", "Params.sketch3_radius3")
sketch3.setExpression("Constraints[65]", "Params.sketch3_radius4")
sketch3.setExpression("Constraints[66]", "Params.sketch3_radius5")
pocket2 = body.newObject("PartDesign::Pocket", "Pocket001")
pocket2.Profile = sketch3
pocket2.setExpression("Length", "Params.pocket2_length")
pocket2.Reversed = True

doc.recompute()
